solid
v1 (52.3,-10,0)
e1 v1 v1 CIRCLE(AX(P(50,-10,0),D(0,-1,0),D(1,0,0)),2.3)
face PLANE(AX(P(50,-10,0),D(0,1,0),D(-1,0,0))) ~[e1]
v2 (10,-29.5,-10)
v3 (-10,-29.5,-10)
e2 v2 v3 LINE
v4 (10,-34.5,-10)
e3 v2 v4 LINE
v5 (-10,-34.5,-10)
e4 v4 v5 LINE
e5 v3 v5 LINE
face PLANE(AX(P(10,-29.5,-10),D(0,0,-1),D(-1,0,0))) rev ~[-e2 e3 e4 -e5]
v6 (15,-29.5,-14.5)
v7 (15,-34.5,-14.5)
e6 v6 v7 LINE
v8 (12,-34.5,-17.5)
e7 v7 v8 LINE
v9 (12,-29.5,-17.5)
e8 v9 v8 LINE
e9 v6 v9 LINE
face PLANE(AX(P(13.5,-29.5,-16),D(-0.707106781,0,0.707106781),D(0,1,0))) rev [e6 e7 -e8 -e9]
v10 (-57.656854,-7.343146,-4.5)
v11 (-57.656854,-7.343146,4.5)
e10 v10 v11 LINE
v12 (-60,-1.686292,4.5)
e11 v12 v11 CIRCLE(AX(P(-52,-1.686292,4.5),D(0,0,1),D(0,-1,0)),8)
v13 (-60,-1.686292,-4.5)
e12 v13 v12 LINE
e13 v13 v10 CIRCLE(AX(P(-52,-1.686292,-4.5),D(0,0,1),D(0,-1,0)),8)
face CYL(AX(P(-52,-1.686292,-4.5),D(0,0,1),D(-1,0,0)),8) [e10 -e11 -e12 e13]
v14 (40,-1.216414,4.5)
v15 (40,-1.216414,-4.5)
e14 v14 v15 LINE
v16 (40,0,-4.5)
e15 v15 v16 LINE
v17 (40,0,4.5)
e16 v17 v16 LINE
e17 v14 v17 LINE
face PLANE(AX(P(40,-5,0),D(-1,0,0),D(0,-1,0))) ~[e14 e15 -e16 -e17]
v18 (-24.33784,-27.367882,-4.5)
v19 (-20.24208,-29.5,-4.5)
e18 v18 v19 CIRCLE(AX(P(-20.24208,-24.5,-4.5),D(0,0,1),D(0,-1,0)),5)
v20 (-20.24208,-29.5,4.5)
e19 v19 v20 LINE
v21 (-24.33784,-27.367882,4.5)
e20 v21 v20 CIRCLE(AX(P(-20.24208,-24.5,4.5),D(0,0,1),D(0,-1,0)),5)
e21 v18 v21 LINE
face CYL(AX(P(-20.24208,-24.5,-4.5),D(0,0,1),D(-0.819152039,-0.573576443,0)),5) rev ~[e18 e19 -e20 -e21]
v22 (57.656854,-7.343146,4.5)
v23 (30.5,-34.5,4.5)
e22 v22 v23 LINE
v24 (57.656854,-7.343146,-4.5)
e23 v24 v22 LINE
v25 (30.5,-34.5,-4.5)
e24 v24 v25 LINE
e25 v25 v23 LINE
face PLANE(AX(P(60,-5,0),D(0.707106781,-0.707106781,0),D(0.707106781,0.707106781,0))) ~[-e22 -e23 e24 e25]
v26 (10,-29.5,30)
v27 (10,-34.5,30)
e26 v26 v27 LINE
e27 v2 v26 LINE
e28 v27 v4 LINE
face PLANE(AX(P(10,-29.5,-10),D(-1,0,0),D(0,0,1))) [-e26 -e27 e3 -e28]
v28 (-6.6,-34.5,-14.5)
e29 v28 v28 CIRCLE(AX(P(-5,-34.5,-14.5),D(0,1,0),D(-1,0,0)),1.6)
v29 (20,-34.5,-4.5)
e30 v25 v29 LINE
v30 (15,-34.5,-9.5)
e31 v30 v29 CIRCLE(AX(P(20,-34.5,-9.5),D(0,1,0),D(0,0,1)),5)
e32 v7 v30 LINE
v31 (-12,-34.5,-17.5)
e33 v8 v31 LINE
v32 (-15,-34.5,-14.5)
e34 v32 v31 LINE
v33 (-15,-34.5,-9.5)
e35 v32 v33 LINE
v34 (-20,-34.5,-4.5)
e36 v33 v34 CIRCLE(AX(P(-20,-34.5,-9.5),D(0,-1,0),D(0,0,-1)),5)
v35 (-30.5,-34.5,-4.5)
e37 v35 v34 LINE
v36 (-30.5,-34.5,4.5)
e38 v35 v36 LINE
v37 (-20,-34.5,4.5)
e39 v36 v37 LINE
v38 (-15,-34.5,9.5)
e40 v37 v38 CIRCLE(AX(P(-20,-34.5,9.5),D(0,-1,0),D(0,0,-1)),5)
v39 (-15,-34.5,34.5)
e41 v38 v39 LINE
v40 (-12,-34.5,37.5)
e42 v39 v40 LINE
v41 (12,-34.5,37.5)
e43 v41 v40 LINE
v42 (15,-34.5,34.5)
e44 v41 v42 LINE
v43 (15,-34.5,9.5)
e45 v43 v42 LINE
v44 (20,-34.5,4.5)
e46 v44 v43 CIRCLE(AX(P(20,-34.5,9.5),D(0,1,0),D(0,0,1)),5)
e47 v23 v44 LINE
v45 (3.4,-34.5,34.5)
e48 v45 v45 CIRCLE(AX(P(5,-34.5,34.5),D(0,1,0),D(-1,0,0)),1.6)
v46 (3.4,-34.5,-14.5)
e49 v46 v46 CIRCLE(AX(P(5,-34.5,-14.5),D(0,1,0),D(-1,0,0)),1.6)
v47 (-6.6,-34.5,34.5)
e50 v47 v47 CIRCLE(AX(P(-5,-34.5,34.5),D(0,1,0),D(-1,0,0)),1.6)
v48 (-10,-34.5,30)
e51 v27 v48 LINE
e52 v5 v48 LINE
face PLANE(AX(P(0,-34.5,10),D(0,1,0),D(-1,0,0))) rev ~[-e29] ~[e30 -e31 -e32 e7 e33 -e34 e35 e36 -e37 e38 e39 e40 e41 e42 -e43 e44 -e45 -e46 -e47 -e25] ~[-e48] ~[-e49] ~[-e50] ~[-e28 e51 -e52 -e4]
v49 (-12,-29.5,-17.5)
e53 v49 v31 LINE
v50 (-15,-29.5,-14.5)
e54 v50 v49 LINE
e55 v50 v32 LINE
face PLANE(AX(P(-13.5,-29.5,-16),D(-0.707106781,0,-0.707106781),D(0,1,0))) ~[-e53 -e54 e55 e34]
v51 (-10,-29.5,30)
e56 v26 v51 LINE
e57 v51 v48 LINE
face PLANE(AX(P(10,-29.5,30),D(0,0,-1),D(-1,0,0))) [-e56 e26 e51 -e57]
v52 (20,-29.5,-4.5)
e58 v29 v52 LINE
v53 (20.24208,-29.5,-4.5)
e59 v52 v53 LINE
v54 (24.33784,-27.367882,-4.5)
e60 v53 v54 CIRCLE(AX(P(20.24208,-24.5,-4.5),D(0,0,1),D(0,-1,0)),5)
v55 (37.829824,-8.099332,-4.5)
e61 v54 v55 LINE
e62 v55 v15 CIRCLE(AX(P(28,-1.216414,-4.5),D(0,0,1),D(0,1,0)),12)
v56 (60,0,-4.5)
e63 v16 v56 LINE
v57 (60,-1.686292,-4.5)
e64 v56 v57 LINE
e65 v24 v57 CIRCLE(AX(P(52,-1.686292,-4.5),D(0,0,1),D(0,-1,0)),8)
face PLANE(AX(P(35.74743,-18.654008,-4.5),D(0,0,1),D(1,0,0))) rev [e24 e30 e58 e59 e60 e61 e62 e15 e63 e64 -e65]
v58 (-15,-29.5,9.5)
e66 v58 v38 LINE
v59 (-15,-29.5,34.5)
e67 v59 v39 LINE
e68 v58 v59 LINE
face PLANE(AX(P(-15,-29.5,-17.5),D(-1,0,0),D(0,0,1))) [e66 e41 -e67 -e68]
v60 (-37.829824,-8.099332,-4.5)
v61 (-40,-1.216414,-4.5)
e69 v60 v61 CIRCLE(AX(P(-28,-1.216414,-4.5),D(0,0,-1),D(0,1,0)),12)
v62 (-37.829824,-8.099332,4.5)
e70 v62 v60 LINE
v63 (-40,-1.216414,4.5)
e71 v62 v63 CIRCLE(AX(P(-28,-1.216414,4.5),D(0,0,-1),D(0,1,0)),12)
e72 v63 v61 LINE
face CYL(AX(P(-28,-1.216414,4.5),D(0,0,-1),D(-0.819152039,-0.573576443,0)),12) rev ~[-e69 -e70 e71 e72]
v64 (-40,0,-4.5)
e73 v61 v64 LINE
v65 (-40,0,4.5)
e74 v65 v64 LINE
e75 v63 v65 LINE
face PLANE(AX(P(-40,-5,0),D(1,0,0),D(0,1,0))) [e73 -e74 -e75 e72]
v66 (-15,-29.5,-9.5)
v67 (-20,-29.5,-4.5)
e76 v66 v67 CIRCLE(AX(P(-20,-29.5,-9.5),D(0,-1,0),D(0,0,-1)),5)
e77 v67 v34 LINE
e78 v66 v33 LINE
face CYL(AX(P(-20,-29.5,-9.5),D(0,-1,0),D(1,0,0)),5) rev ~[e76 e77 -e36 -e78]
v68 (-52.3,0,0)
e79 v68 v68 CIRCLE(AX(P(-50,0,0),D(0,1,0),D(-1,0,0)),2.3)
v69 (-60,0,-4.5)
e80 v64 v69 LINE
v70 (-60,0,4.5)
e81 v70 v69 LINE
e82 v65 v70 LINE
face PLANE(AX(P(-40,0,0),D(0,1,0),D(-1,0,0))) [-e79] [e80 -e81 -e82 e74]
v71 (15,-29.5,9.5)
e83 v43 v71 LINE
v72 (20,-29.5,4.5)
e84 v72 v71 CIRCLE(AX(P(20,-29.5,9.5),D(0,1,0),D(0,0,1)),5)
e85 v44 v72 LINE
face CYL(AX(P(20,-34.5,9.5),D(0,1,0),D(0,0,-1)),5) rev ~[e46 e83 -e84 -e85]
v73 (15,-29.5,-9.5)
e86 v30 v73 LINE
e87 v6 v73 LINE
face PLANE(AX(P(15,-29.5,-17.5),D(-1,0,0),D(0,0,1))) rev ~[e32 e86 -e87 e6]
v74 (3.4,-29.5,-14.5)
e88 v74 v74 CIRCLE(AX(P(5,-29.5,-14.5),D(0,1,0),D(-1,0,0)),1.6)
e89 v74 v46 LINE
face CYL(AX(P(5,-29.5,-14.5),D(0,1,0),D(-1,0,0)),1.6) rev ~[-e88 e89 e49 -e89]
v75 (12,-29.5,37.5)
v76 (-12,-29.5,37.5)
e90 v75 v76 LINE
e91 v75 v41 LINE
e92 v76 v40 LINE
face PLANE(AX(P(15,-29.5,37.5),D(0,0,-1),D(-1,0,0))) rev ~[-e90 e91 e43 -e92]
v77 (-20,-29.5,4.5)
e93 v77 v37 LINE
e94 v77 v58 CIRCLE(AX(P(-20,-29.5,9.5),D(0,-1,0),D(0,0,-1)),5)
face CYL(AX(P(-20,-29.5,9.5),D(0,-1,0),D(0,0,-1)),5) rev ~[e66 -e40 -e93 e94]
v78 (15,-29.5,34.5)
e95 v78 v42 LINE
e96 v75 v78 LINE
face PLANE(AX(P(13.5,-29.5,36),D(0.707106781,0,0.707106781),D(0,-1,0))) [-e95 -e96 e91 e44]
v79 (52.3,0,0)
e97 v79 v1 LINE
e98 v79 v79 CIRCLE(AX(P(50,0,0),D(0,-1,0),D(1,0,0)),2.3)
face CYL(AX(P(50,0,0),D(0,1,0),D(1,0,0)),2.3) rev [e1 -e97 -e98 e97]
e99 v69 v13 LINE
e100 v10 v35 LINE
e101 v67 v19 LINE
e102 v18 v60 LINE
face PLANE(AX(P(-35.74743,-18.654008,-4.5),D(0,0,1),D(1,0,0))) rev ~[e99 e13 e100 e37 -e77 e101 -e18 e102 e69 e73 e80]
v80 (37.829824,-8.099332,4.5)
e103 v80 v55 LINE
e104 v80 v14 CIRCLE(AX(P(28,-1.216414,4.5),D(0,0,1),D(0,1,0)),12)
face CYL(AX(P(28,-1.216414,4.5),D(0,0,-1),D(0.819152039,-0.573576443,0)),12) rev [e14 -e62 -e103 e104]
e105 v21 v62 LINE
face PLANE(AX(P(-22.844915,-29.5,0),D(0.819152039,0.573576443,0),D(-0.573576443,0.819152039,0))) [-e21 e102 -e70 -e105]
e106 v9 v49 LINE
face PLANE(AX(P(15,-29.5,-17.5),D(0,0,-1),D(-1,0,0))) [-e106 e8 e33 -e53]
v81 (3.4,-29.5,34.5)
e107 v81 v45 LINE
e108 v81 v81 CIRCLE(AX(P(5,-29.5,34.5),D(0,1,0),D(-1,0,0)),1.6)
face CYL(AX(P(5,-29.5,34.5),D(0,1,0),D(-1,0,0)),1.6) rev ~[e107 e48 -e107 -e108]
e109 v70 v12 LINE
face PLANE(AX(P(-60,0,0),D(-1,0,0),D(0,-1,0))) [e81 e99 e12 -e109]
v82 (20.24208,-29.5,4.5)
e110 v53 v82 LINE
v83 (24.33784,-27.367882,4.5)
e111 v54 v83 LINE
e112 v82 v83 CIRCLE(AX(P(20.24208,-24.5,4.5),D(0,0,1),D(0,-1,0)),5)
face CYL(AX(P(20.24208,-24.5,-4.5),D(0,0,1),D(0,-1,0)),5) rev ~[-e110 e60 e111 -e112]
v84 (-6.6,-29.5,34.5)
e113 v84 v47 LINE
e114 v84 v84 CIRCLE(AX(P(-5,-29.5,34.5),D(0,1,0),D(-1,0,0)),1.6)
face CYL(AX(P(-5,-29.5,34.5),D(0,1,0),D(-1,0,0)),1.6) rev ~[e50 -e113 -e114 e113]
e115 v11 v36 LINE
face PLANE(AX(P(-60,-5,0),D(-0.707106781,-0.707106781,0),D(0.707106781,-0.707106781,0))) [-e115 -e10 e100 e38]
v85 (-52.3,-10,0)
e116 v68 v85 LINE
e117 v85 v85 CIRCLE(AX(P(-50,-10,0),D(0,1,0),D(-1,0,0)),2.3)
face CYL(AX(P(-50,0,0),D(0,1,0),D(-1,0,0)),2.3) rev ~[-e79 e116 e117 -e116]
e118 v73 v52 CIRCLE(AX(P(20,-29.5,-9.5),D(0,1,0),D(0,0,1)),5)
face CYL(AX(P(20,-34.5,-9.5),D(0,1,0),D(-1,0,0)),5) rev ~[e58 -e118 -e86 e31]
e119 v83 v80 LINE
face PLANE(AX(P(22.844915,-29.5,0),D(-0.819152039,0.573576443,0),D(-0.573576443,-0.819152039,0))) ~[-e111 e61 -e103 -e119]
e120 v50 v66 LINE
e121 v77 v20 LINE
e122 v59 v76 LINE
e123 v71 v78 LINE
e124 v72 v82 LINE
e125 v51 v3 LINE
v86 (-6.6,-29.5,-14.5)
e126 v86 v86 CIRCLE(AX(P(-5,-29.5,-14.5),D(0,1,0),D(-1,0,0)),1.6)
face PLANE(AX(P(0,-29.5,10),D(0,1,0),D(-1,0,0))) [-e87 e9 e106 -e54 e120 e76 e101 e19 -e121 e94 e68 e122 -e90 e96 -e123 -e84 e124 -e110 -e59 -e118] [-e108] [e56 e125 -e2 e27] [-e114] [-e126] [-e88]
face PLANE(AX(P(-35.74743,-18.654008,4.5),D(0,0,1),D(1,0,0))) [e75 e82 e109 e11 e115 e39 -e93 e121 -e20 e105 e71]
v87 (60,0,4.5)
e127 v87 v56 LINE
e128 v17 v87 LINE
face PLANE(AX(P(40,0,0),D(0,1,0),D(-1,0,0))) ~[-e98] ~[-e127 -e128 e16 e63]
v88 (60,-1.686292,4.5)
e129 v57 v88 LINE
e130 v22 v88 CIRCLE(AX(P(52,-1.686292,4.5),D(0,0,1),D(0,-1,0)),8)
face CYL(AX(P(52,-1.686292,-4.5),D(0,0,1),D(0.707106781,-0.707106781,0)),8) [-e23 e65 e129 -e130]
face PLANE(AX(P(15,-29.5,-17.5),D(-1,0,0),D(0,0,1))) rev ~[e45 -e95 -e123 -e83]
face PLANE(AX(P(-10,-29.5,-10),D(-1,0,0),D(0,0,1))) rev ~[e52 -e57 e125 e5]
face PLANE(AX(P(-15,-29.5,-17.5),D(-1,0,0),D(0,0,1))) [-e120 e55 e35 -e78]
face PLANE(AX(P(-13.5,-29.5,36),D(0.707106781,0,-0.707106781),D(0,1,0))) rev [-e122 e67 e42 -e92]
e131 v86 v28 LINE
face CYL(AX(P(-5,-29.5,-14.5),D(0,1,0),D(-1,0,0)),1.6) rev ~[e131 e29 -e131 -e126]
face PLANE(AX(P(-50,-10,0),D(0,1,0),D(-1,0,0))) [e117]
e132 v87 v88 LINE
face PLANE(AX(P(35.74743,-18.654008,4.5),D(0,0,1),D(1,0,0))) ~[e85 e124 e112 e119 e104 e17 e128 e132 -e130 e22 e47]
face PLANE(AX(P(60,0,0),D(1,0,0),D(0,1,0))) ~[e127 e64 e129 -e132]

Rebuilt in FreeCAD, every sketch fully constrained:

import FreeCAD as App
import Part
import Sketcher

V = App.Vector
Q = App.Units.Quantity


def edges_at(feature, points):
    """Names of the edges that pass closest to the given points."""
    edges = feature.Shape.Edges
    near = lambda p: min(range(len(edges)), key=lambda i: edges[i].distToShape(Part.Vertex(*p))[0])
    return sorted({f"Edge{near(p) + 1}" for p in points})

doc = App.newDocument("Part")
body = doc.addObject("PartDesign::Body", "Body")
body.AllowCompound = True

# Sketch on XY plane
sketch1 = body.newObject("Sketcher::SketchObject", "Sketch")
sketch1.AttachmentSupport = (doc.getObject("XY_Plane"), [""])
sketch1.MapMode = "FlatFace"
sketch1.addGeometry(Part.LineSegment(V(-60, 0, 0), V(-60, -5, 0)), False)
sketch1.addGeometry(Part.LineSegment(V(-60, -5, 0), V(-30.5, -34.5, 0)), False)
sketch1.addGeometry(Part.LineSegment(V(-30.5, -34.5, 0), V(-10, -34.5, 0)), False)
sketch1.addGeometry(Part.LineSegment(V(-10, -34.5, 0), V(-10, -29.5, 0)), False)
sketch1.addGeometry(Part.LineSegment(V(-10, -29.5, 0), V(-22.844915, -29.5, 0)), False)
sketch1.addGeometry(Part.LineSegment(V(-22.844915, -29.5, 0), V(-40, -5, 0)), False)
sketch1.addGeometry(Part.LineSegment(V(-40, -5, 0), V(-40, 0, 0)), False)
sketch1.addGeometry(Part.LineSegment(V(-40, 0, 0), V(-60, 0, 0)), False)
sketch1.addConstraint(Sketcher.Constraint("Coincident", 0, 2, 1, 1))
sketch1.addConstraint(Sketcher.Constraint("Coincident", 1, 2, 2, 1))
sketch1.addConstraint(Sketcher.Constraint("Coincident", 2, 2, 3, 1))
sketch1.addConstraint(Sketcher.Constraint("Coincident", 3, 2, 4, 1))
sketch1.addConstraint(Sketcher.Constraint("Coincident", 4, 2, 5, 1))
sketch1.addConstraint(Sketcher.Constraint("Coincident", 5, 2, 6, 1))
sketch1.addConstraint(Sketcher.Constraint("Coincident", 6, 2, 7, 1))
sketch1.addConstraint(Sketcher.Constraint("Coincident", 7, 2, 0, 1))
sketch1.addConstraint(Sketcher.Constraint("Vertical", 0))
sketch1.addConstraint(Sketcher.Constraint("Horizontal", 2))
sketch1.addConstraint(Sketcher.Constraint("Vertical", 3))
sketch1.addConstraint(Sketcher.Constraint("Horizontal", 4))
sketch1.addConstraint(Sketcher.Constraint("Vertical", 6))
sketch1.addConstraint(Sketcher.Constraint("Horizontal", 7))
sketch1.addConstraint(Sketcher.Constraint("PointOnObject", 6, 2, -1))
sketch1.addConstraint(Sketcher.Constraint("Horizontal", 0, 2, 5, 2))
sketch1.addConstraint(Sketcher.Constraint("Equal", 0, 3))
sketch1.addConstraint(Sketcher.Constraint("DistanceX", 7, 2, 7, 1, Q("20 mm")))
sketch1.addConstraint(Sketcher.Constraint("DistanceY", 0, 2, 0, 1, Q("5 mm")))
sketch1.addConstraint(Sketcher.Constraint("Angle", 1, Q("-45 deg")))
sketch1.addConstraint(Sketcher.Constraint("Angle", 5, Q("125 deg")))
sketch1.addConstraint(Sketcher.Constraint("DistanceX", 2, 1, 2, 2, Q("20.5 mm")))
sketch1.addConstraint(Sketcher.Constraint("DistanceX", 0, 2, -1, 1, Q("60 mm")))
sketch1.addConstraint(Sketcher.Constraint("DistanceX", 2, 2, -1, 1, Q("10 mm")))
pad1 = body.newObject("PartDesign::Pad", "Pad")
pad1.Profile = sketch1
pad1.Length = 9
pad1.Midplane = True

# Sketch on XZ plane
sketch2 = body.newObject("Sketcher::SketchObject", "Sketch001")
sketch2.AttachmentSupport = (doc.getObject("XZ_Plane"), [""])
sketch2.MapMode = "FlatFace"
sketch2.addGeometry(Part.Circle(V(-50, 0, 0), V(0, 0, 1), 2.3), False)
sketch2.addConstraint(Sketcher.Constraint("PointOnObject", 0, 3, -1))
sketch2.addConstraint(Sketcher.Constraint("Diameter", 0, Q("4.6 mm")))
sketch2.addConstraint(Sketcher.Constraint("DistanceX", 0, 3, -1, 1, Q("50 mm")))
pocket1 = body.newObject("PartDesign::Pocket", "Pocket")
pocket1.Profile = sketch2
pocket1.Length = 10
pocket1.Reversed = True
doc.recompute()

mirrored = body.newObject("PartDesign::Mirrored", "Mirrored")
mirrored.Originals = [pad1, pocket1]
mirrored.MirrorPlane = (doc.getObject("YZ_Plane"), [""])
body.Tip = mirrored

# Sketch on XZ plane
sketch3 = body.newObject("Sketcher::SketchObject", "Sketch002")
sketch3.AttachmentSupport = (doc.getObject("XZ_Plane"), [""])
sketch3.MapMode = "FlatFace"
sketch3.AttachmentOffset = App.Placement(V(0, 0, 29.5), App.Rotation())
sketch3.addGeometry(Part.LineSegment(V(15, 37.5, 0), V(15, -17.5, 0)), False)
sketch3.addGeometry(Part.LineSegment(V(15, -17.5, 0), V(-15, -17.5, 0)), False)
sketch3.addGeometry(Part.LineSegment(V(-15, -17.5, 0), V(-15, 37.5, 0)), False)
sketch3.addGeometry(Part.LineSegment(V(-15, 37.5, 0), V(15, 37.5, 0)), False)
sketch3.addGeometry(Part.Circle(V(5, -14.5, 0), V(0, 0, 1), 1.6), False)
sketch3.addGeometry(Part.Circle(V(-5, -14.5, 0), V(0, 0, 1), 1.6), False)
sketch3.addGeometry(Part.Circle(V(5, 34.5, 0), V(0, 0, 1), 1.6), False)
sketch3.addGeometry(Part.LineSegment(V(-10, -10, 0), V(10, -10, 0)), False)
sketch3.addGeometry(Part.LineSegment(V(10, -10, 0), V(10, 30, 0)), False)
sketch3.addGeometry(Part.LineSegment(V(10, 30, 0), V(-10, 30, 0)), False)
sketch3.addGeometry(Part.LineSegment(V(-10, 30, 0), V(-10, -10, 0)), False)
sketch3.addGeometry(Part.Circle(V(-5, 34.5, 0), V(0, 0, 1), 1.6), False)
sketch3.addConstraint(Sketcher.Constraint("Coincident", 0, 2, 1, 1))
sketch3.addConstraint(Sketcher.Constraint("Coincident", 1, 2, 2, 1))
sketch3.addConstraint(Sketcher.Constraint("Coincident", 2, 2, 3, 1))
sketch3.addConstraint(Sketcher.Constraint("Coincident", 3, 2, 0, 1))
sketch3.addConstraint(Sketcher.Constraint("Coincident", 7, 2, 8, 1))
sketch3.addConstraint(Sketcher.Constraint("Coincident", 8, 2, 9, 1))
sketch3.addConstraint(Sketcher.Constraint("Coincident", 9, 2, 10, 1))
sketch3.addConstraint(Sketcher.Constraint("Coincident", 10, 2, 7, 1))
sketch3.addConstraint(Sketcher.Constraint("Vertical", 0))
sketch3.addConstraint(Sketcher.Constraint("Horizontal", 1))
sketch3.addConstraint(Sketcher.Constraint("Vertical", 2))
sketch3.addConstraint(Sketcher.Constraint("Horizontal", 3))
sketch3.addConstraint(Sketcher.Constraint("Horizontal", 7))
sketch3.addConstraint(Sketcher.Constraint("Vertical", 8))
sketch3.addConstraint(Sketcher.Constraint("Horizontal", 9))
sketch3.addConstraint(Sketcher.Constraint("Vertical", 10))
sketch3.addConstraint(Sketcher.Constraint("Equal", 4, 5))
sketch3.addConstraint(Sketcher.Constraint("Equal", 5, 6))
sketch3.addConstraint(Sketcher.Constraint("Equal", 6, 11))
sketch3.addConstraint(Sketcher.Constraint("Symmetric", 4, 3, 5, 3, -2))
sketch3.addConstraint(Sketcher.Constraint("Symmetric", 6, 3, 11, 3, -2))
sketch3.addConstraint(Sketcher.Constraint("Vertical", 4, 3, 6, 3))
sketch3.addConstraint(Sketcher.Constraint("Diameter", 4, Q("3.2 mm")))
sketch3.addConstraint(Sketcher.Constraint("DistanceX", 1, 2, 1, 1, Q("30 mm")))
sketch3.addConstraint(Sketcher.Constraint("DistanceX", 7, 1, 7, 2, Q("20 mm")))
sketch3.addConstraint(Sketcher.Constraint("DistanceY", 0, 2, 0, 1, Q("55 mm")))
sketch3.addConstraint(Sketcher.Constraint("DistanceY", 8, 1, 8, 2, Q("40 mm")))
sketch3.addConstraint(Sketcher.Constraint("DistanceX", -1, 1, 4, 3, Q("5 mm")))
sketch3.addConstraint(Sketcher.Constraint("DistanceX", -1, 1, 0, 2, Q("15 mm")))
sketch3.addConstraint(Sketcher.Constraint("DistanceX", -1, 1, 7, 2, Q("10 mm")))
sketch3.addConstraint(Sketcher.Constraint("DistanceY", 7, 2, -1, 1, Q("10 mm")))
sketch3.addConstraint(Sketcher.Constraint("DistanceY", 4, 3, 6, 3, Q("49 mm")))
sketch3.addConstraint(Sketcher.Constraint("DistanceY", 0, 2, 4, 3, Q("3 mm")))
sketch3.addConstraint(Sketcher.Constraint("DistanceY", 4, 3, -1, 1, Q("14.5 mm")))
pad2 = body.newObject("PartDesign::Pad", "Pad001")
pad2.Profile = sketch3
pad2.Length = 5
doc.recompute()

fillet = body.newObject("PartDesign::Fillet", "Fillet")
fillet.Base = (pad2, edges_at(pad2, [(-40, -5, 0), (40, -5, 0)]))
fillet.Radius = 12
doc.recompute()

fillet2 = body.newObject("PartDesign::Fillet", "Fillet001")
fillet2.Base = (fillet, edges_at(fillet, [(22.845, -29.5, 0), (-22.845, -29.5, 0)]))
fillet2.Radius = 5
doc.recompute()

fillet3 = body.newObject("PartDesign::Fillet", "Fillet002")
fillet3.Base = (fillet2, edges_at(fillet2, [(60, -5, 0), (-60, -5, 0)]))
fillet3.Radius = 8
doc.recompute()

chamfer = body.newObject("PartDesign::Chamfer", "Chamfer")
chamfer.Base = (fillet3, edges_at(fillet3, [
    (15, -32, -17.5),
    (-15, -32, -17.5),
    (15, -32, 37.5),
    (-15, -32, 37.5),
]))
chamfer.Size = 3
doc.recompute()

fillet4 = body.newObject("PartDesign::Fillet", "Fillet003")
fillet4.Base = (chamfer, edges_at(chamfer, [
    (15, -32, 4.5),
    (15, -32, -4.5),
    (-15, -32, 4.5),
    (-15, -32, -4.5),
]))
fillet4.Radius = 5

doc.recompute()
